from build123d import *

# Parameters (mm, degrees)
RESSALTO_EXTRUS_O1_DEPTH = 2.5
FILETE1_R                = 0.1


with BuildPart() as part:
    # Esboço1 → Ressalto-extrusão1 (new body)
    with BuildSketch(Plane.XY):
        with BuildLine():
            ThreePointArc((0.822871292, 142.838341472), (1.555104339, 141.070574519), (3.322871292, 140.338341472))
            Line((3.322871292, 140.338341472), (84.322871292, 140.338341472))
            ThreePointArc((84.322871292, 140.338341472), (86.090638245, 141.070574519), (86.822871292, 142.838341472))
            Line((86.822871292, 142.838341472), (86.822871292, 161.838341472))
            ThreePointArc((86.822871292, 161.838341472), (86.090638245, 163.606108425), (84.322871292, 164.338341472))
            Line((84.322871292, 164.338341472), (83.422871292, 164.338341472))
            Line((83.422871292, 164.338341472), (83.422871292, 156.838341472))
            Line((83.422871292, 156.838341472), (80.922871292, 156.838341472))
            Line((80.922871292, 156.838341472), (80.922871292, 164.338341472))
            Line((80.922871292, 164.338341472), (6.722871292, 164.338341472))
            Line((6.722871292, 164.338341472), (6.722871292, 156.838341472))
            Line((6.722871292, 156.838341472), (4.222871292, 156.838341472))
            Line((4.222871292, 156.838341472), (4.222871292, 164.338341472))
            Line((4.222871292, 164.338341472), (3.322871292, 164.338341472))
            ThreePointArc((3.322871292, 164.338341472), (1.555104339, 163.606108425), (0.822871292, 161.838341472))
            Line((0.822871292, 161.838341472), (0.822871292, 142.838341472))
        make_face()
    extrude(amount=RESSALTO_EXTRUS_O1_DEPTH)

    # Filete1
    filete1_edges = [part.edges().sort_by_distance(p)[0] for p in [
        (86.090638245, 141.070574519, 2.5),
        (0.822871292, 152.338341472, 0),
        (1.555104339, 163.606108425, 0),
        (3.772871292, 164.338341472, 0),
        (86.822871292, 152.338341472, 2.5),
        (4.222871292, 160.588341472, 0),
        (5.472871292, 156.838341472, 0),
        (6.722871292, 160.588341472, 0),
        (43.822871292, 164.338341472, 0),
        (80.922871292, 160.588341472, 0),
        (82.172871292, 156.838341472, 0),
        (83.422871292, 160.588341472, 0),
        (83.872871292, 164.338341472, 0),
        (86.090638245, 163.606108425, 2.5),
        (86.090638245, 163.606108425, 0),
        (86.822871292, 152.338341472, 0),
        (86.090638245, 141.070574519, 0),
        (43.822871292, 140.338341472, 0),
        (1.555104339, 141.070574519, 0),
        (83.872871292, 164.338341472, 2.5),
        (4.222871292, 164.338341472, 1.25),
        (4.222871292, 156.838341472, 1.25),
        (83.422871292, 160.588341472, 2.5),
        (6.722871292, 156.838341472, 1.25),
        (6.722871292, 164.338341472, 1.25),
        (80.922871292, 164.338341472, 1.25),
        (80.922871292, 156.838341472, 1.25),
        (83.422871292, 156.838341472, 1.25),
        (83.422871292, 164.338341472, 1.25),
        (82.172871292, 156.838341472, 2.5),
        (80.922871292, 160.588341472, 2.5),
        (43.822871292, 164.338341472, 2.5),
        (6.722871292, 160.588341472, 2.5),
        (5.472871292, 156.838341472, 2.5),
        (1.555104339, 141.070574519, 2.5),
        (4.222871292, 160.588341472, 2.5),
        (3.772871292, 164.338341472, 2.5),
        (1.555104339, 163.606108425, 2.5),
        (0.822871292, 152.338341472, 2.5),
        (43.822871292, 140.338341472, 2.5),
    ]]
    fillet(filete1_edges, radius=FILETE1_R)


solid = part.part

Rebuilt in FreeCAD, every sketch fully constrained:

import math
import FreeCAD as App
import Part
import Sketcher

V = App.Vector

doc = App.newDocument("Part")
body = doc.addObject("PartDesign::Body", "Body")

# Sketch on XY plane
sketch1 = body.newObject("Sketcher::SketchObject", "Sketch")
sketch1.AttachmentSupport = (doc.getObject("XY_Plane"), [""])
sketch1.MapMode = "FlatFace"
sketch1.addGeometry([
    Part.ArcOfCircle(Part.Circle(V(3.3, 142.8, 0), V(0, 0, 1), 2.5), math.radians(180), math.radians(270)),  # 0
    Part.LineSegment(V(3.3, 140.3, 0), V(84.3, 140.3, 0)),  # 1
    Part.ArcOfCircle(Part.Circle(V(84.3, 142.8, 0), V(0, 0, 1), 2.5), math.radians(-90), math.radians(0)),  # 2
    Part.LineSegment(V(86.8, 142.8, 0), V(86.8, 161.8, 0)),  # 3
    Part.ArcOfCircle(Part.Circle(V(84.3, 161.8, 0), V(0, 0, 1), 2.5), math.radians(0), math.radians(90)),  # 4
    Part.LineSegment(V(84.3, 164.3, 0), V(83.4, 164.3, 0)),  # 5
    Part.LineSegment(V(83.4, 164.3, 0), V(83.4, 156.8, 0)),  # 6
    Part.LineSegment(V(83.4, 156.8, 0), V(80.9, 156.8, 0)),  # 7
    Part.LineSegment(V(80.9, 156.8, 0), V(80.9, 164.3, 0)),  # 8
    Part.LineSegment(V(80.9, 164.3, 0), V(6.7, 164.3, 0)),  # 9
    Part.LineSegment(V(6.7, 164.3, 0), V(6.7, 156.8, 0)),  # 10
    Part.LineSegment(V(6.7, 156.8, 0), V(4.2, 156.8, 0)),  # 11
    Part.LineSegment(V(4.2, 156.8, 0), V(4.2, 164.3, 0)),  # 12
    Part.LineSegment(V(4.2, 164.3, 0), V(3.3, 164.3, 0)),  # 13
    Part.ArcOfCircle(Part.Circle(V(3.3, 161.8, 0), V(0, 0, 1), 2.5), math.radians(90), math.radians(180)),  # 14
    Part.LineSegment(V(0.8, 161.8, 0), V(0.8, 142.8, 0)),  # 15
], False)
sketch1.addConstraint([
    Sketcher.Constraint("Tangent", 0, 2, 1, 1),
    Sketcher.Constraint("Tangent", 1, 2, 2, 1),
    Sketcher.Constraint("Tangent", 2, 2, 3, 1),
    Sketcher.Constraint("Tangent", 3, 2, 4, 1),
    Sketcher.Constraint("Tangent", 4, 2, 5, 1),
    Sketcher.Constraint("Coincident", 5, 2, 6, 1),
    Sketcher.Constraint("Coincident", 6, 2, 7, 1),
    Sketcher.Constraint("Coincident", 7, 2, 8, 1),
    Sketcher.Constraint("Coincident", 8, 2, 9, 1),
    Sketcher.Constraint("Coincident", 9, 2, 10, 1),
    Sketcher.Constraint("Coincident", 10, 2, 11, 1),
    Sketcher.Constraint("Coincident", 11, 2, 12, 1),
    Sketcher.Constraint("Coincident", 12, 2, 13, 1),
    Sketcher.Constraint("Tangent", 13, 2, 14, 1),
    Sketcher.Constraint("Tangent", 14, 2, 15, 1),
    Sketcher.Constraint("Tangent", 15, 2, 0, 1),
    Sketcher.Constraint("Horizontal", 1),
    Sketcher.Constraint("Vertical", 3),
    Sketcher.Constraint("Horizontal", 5),
    Sketcher.Constraint("Vertical", 6),
    Sketcher.Constraint("Horizontal", 7),
    Sketcher.Constraint("Vertical", 8),
    Sketcher.Constraint("Horizontal", 9),
    Sketcher.Constraint("Vertical", 10),
    Sketcher.Constraint("Horizontal", 11),
    Sketcher.Constraint("Vertical", 12),
    Sketcher.Constraint("Horizontal", 13),
    Sketcher.Constraint("Vertical", 15),
    Sketcher.Constraint("Equal", 0, 2),
    Sketcher.Constraint("Equal", 2, 4),
    Sketcher.Constraint("Equal", 4, 14),
    Sketcher.Constraint("Horizontal", 4, 3, 14, 3),
    Sketcher.Constraint("Horizontal", 5, 2, 8, 2),
    Sketcher.Constraint("Horizontal", 7, 2, 10, 2),
    Sketcher.Constraint("Equal", 7, 11),
    Sketcher.Constraint("Equal", 5, 13),
    Sketcher.Constraint("Radius", 0, 2.5),
    Sketcher.Constraint("DistanceX", 1, 1, 1, 2, 81.0),
    Sketcher.Constraint("DistanceY", 3, 1, 3, 2, 19.0),
    Sketcher.Constraint("DistanceX", 5, 2, 5, 1, 0.9),
    Sketcher.Constraint("DistanceX", 7, 2, 7, 1, 2.5),
    Sketcher.Constraint("DistanceY", 6, 2, 6, 1, 7.5),
    Sketcher.Constraint("DistanceX", -1, 1, 0, 3, 3.322871),
    Sketcher.Constraint("DistanceY", -1, 1, 0, 3, 142.838341),
])
pad1 = body.newObject("PartDesign::Pad", "Pad")
pad1.Profile = sketch1
pad1.Length = 2.5
doc.recompute()

fillet = body.newObject("PartDesign::Fillet", "Fillet")
fillet.Base = (pad1, ["Edge1"])
fillet.UseAllEdges = True
fillet.Radius = 0.1

doc.recompute()
